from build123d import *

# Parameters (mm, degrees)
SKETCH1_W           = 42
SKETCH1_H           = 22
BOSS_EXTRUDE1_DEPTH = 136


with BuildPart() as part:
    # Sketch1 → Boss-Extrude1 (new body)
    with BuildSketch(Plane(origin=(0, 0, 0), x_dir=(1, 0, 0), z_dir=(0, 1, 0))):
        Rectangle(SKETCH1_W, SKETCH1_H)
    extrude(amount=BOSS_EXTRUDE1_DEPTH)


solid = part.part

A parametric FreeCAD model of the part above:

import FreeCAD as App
import Part
import Sketcher
from FreeCAD import Vector
Q = App.Units.Quantity


def add_polygon(sketch, points):
    """Adds a closed chain of lines whose ends are joined by coincident constraints."""
    first, n = sketch.GeometryCount, len(points)
    for a, b in zip(points, points[1:] + points[:1]):
        sketch.addGeometry(Part.LineSegment(App.Vector(*a, 0), App.Vector(*b, 0)), False)
    for i in range(n):
        sketch.addConstraint(Sketcher.Constraint("Coincident", first + i, 2, first + (i + 1) % n, 1))

doc = App.newDocument("Part")
body = doc.addObject("PartDesign::Body", "Body")

sketch1 = doc.addObject("Sketcher::SketchObject", "Sketch")
body.addObject(sketch1)
sketch1.AttachmentSupport = (doc.XZ_Plane, [""])
sketch1.MapMode = "FlatFace"
add_polygon(sketch1, [(-21, -11), (-21, 11), (21, 11), (21, -11)])
sketch1.addConstraint(Sketcher.Constraint("Vertical", 0))
sketch1.addConstraint(Sketcher.Constraint("Horizontal", 1))
sketch1.addConstraint(Sketcher.Constraint("Vertical", 2))
sketch1.addConstraint(Sketcher.Constraint("Horizontal", 3))
sketch1.addConstraint(Sketcher.Constraint("Symmetric", 0, 2, 2, 2, -1, 1))
sketch1.addConstraint(Sketcher.Constraint("DistanceX", 1, 1, 1, 2, Q("42 mm")))
sketch1.addConstraint(Sketcher.Constraint("DistanceY", 0, 1, 0, 2, Q("22 mm")))
pad1 = doc.addObject("PartDesign::Pad", "Pad")
body.addObject(pad1)
pad1.Profile = sketch1
pad1.Length = 136
pad1.Reversed = True

doc.recompute()
